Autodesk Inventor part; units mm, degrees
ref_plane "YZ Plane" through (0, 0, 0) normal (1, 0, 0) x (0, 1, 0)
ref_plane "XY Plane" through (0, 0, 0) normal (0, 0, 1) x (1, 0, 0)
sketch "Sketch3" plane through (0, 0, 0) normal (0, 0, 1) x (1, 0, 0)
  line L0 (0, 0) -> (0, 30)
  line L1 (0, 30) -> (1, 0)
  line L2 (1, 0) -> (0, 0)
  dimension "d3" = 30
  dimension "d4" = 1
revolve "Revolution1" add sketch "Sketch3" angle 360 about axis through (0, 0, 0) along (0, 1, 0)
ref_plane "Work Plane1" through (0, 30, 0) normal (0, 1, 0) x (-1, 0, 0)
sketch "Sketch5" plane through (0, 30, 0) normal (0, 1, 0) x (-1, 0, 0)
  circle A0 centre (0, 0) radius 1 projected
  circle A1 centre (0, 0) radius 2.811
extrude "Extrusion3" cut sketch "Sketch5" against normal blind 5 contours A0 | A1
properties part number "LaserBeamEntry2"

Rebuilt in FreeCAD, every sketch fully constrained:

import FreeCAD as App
import Part
import Sketcher
from FreeCAD import Vector
Q = App.Units.Quantity

doc = App.newDocument("Part")
body = doc.addObject("PartDesign::Body", "Body")

sketch1 = doc.addObject("Sketcher::SketchObject", "Sketch")
body.addObject(sketch1)
sketch1.AttachmentSupport = (doc.XY_Plane, [""])
sketch1.MapMode = "FlatFace"
sketch1.addGeometry(Part.LineSegment(Vector(0, 30, 0), Vector(0, 0, 0)), False)
sketch1.addGeometry(Part.LineSegment(Vector(0, 0, 0), Vector(1, 0, 0)), False)
sketch1.addGeometry(Part.LineSegment(Vector(1, 0, 0), Vector(0, 30, 0)), False)
sketch1.addConstraint(Sketcher.Constraint("Coincident", 0, 2, 1, 1))
sketch1.addConstraint(Sketcher.Constraint("Coincident", 1, 2, 2, 1))
sketch1.addConstraint(Sketcher.Constraint("Coincident", 2, 2, 0, 1))
sketch1.addConstraint(Sketcher.Constraint("Vertical", 0))
sketch1.addConstraint(Sketcher.Constraint("Horizontal", 1))
sketch1.addConstraint(Sketcher.Constraint("Coincident", 0, 2, -1, 1))
sketch1.addConstraint(Sketcher.Constraint("DistanceX", 1, 1, 1, 2, Q("1 mm")))
sketch1.addConstraint(Sketcher.Constraint("DistanceY", 0, 2, 0, 1, Q("30 mm")))
revolution = doc.addObject("PartDesign::Revolution", "Revolution")
body.addObject(revolution)
revolution.Profile = sketch1
revolution.ReferenceAxis = (sketch1, ["V_Axis"])
revolution.Angle = 360

sketch2 = doc.addObject("Sketcher::SketchObject", "Sketch001")
body.addObject(sketch2)
sketch2.AttachmentSupport = (doc.XZ_Plane, [""])
sketch2.MapMode = "FlatFace"
sketch2.AttachmentOffset = App.Placement(Vector(0, 0, -30), App.Rotation())
sketch2.addGeometry(Part.Circle(Vector(0, 0, 0), Vector(0, 0, 1), 2.8), False)
sketch2.addConstraint(Sketcher.Constraint("Coincident", 0, 3, -1, 1))
sketch2.addConstraint(Sketcher.Constraint("Diameter", 0, Q("5.622 mm")))
pocket1 = doc.addObject("PartDesign::Pocket", "Pocket")
body.addObject(pocket1)
pocket1.Profile = sketch2
pocket1.Length = 5
pocket1.Reversed = True

doc.recompute()
